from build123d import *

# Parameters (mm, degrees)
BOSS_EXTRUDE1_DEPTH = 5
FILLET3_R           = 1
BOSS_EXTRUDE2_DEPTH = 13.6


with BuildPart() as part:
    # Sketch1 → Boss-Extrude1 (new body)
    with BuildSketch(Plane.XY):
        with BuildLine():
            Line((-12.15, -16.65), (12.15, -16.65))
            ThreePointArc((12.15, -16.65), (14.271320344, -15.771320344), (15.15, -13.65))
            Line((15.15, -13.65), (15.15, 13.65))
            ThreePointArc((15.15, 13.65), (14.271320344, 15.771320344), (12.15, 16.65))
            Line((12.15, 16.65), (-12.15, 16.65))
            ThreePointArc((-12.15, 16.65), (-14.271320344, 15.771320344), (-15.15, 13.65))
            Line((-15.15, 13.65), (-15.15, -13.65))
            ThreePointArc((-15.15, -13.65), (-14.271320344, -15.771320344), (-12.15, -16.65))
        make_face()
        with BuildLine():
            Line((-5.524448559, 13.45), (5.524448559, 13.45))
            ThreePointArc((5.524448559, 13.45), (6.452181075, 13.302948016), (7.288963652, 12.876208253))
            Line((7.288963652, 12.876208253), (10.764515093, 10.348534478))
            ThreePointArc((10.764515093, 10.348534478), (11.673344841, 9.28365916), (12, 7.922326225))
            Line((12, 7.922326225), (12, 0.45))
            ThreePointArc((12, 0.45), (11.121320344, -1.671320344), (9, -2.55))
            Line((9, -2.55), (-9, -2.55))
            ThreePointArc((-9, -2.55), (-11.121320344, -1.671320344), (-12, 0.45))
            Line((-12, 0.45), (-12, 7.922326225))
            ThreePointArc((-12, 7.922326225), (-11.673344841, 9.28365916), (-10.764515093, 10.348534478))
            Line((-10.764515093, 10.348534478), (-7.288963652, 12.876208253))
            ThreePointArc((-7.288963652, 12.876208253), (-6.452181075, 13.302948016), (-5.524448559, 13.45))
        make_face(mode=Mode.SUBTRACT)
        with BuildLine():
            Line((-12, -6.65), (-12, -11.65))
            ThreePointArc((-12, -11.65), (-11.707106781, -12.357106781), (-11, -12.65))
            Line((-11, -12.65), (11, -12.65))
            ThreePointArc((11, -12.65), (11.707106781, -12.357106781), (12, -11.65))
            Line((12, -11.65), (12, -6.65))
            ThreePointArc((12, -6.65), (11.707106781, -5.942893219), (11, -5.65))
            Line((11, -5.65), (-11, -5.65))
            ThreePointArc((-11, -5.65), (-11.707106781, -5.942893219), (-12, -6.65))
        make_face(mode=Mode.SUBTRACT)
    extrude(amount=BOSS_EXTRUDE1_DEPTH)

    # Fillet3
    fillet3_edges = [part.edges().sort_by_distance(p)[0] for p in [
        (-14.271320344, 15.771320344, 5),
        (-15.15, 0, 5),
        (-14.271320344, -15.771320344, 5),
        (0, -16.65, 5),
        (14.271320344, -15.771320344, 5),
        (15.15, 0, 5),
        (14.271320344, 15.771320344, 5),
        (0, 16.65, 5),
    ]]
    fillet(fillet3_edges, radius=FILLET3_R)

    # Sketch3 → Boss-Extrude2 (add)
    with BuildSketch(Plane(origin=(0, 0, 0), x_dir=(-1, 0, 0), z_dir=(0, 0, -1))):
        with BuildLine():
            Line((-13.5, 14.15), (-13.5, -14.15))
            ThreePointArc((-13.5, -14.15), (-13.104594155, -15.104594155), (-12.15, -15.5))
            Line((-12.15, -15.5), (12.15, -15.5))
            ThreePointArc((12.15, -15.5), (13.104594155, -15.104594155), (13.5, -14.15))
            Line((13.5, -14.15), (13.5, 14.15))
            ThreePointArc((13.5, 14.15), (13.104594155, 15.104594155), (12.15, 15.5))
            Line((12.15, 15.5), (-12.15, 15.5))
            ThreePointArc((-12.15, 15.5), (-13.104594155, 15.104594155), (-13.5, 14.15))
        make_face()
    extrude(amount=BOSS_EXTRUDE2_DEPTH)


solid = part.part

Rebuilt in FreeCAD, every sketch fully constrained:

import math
import FreeCAD as App
import Part
import Sketcher

V = App.Vector
Q = App.Units.Quantity


def edges_at(feature, points):
    """Names of the edges that pass closest to the given points."""
    edges = feature.Shape.Edges
    near = lambda p: min(range(len(edges)), key=lambda i: edges[i].distToShape(Part.Vertex(*p))[0])
    return sorted({f"Edge{near(p) + 1}" for p in points})

doc = App.newDocument("Part")
body = doc.addObject("PartDesign::Body", "Body")

sketch1 = body.newObject("Sketcher::SketchObject", "Sketch")
sketch1.AttachmentSupport = (doc.getObject("XY_Plane"), [""])
sketch1.MapMode = "FlatFace"
sketch1.addGeometry([
    Part.LineSegment(V(-12.15, -16.65, 0), V(12.15, -16.65, 0)),
    Part.ArcOfCircle(Part.Circle(V(12.15, -13.65, 0), V(0, 0, 1), 3), math.radians(-90), math.radians(0)),
    Part.LineSegment(V(15.15, -13.65, 0), V(15.15, 13.65, 0)),
    Part.ArcOfCircle(Part.Circle(V(12.15, 13.65, 0), V(0, 0, 1), 3), math.radians(0), math.radians(90)),
    Part.LineSegment(V(12.15, 16.65, 0), V(-12.15, 16.65, 0)),
    Part.ArcOfCircle(Part.Circle(V(-12.15, 13.65, 0), V(0, 0, 1), 3), math.radians(90), math.radians(180)),
    Part.LineSegment(V(-15.15, 13.65, 0), V(-15.15, -13.65, 0)),
    Part.ArcOfCircle(Part.Circle(V(-12.15, -13.65, 0), V(0, 0, 1), 3), math.radians(180), math.radians(270)),
    Part.LineSegment(V(-12, -11.65, 0), V(-12, -6.65, 0)),
    Part.ArcOfCircle(Part.Circle(V(-11, -6.65, 0), V(0, 0, 1), 1), math.radians(90), math.radians(180)),
    Part.LineSegment(V(-11, -5.65, 0), V(11, -5.65, 0)),
    Part.ArcOfCircle(Part.Circle(V(11, -6.65, 0), V(0, 0, 1), 1), math.radians(0), math.radians(90)),
    Part.LineSegment(V(12, -6.65, 0), V(12, -11.65, 0)),
    Part.ArcOfCircle(Part.Circle(V(11, -11.65, 0), V(0, 0, 1), 1), math.radians(-90), math.radians(0)),
    Part.LineSegment(V(11, -12.65, 0), V(-11, -12.65, 0)),
    Part.ArcOfCircle(Part.Circle(V(-11, -11.65, 0), V(0, 0, 1), 1), math.radians(-180), math.radians(-90)),
    Part.ArcOfCircle(Part.Circle(V(-5.524449, 10.45, 0), V(0, 0, 1), 3), math.radians(90), math.radians(126.027373)),
    Part.LineSegment(V(-5.524449, 13.45, 0), V(5.524449, 13.45, 0)),
    Part.ArcOfCircle(Part.Circle(V(5.524449, 10.45, 0), V(0, 0, 1), 3), math.radians(53.972627), math.radians(90)),
    Part.LineSegment(V(7.288964, 12.876208, 0), V(10.764515, 10.348534, 0)),
    Part.ArcOfCircle(Part.Circle(V(9, 7.922326, 0), V(0, 0, 1), 3), math.radians(0), math.radians(53.972627)),
    Part.LineSegment(V(12, 7.922326, 0), V(12, 0.45, 0)),
    Part.ArcOfCircle(Part.Circle(V(9, 0.45, 0), V(0, 0, 1), 3), math.radians(-90), math.radians(0)),
    Part.LineSegment(V(9, -2.55, 0), V(-9, -2.55, 0)),
    Part.ArcOfCircle(Part.Circle(V(-9, 0.45, 0), V(0, 0, 1), 3), math.radians(180), math.radians(270)),
    Part.LineSegment(V(-12, 0.45, 0), V(-12, 7.922326, 0)),
    Part.ArcOfCircle(Part.Circle(V(-9, 7.922326, 0), V(0, 0, 1), 3), math.radians(126.027373), math.radians(180)),
    Part.LineSegment(V(-10.764515, 10.348534, 0), V(-7.288964, 12.876208, 0)),
], False)
sketch1.addConstraint([
    Sketcher.Constraint("Tangent", 0, 2, 1, 1),
    Sketcher.Constraint("Tangent", 1, 2, 2, 1),
    Sketcher.Constraint("Tangent", 2, 2, 3, 1),
    Sketcher.Constraint("Tangent", 3, 2, 4, 1),
    Sketcher.Constraint("Tangent", 4, 2, 5, 1),
    Sketcher.Constraint("Tangent", 5, 2, 6, 1),
    Sketcher.Constraint("Tangent", 6, 2, 7, 1),
    Sketcher.Constraint("Tangent", 7, 2, 0, 1),
    Sketcher.Constraint("Tangent", 8, 2, 9, 2),
    Sketcher.Constraint("Tangent", 9, 1, 10, 1),
    Sketcher.Constraint("Tangent", 10, 2, 11, 2),
    Sketcher.Constraint("Tangent", 11, 1, 12, 1),
    Sketcher.Constraint("Tangent", 12, 2, 13, 2),
    Sketcher.Constraint("Tangent", 13, 1, 14, 1),
    Sketcher.Constraint("Tangent", 14, 2, 15, 2),
    Sketcher.Constraint("Tangent", 15, 1, 8, 1),
    Sketcher.Constraint("Tangent", 16, 1, 17, 1),
    Sketcher.Constraint("Tangent", 17, 2, 18, 2),
    Sketcher.Constraint("Tangent", 18, 1, 19, 1),
    Sketcher.Constraint("Tangent", 19, 2, 20, 2),
    Sketcher.Constraint("Tangent", 20, 1, 21, 1),
    Sketcher.Constraint("Tangent", 21, 2, 22, 2),
    Sketcher.Constraint("Tangent", 22, 1, 23, 1),
    Sketcher.Constraint("Tangent", 23, 2, 24, 2),
    Sketcher.Constraint("Tangent", 24, 1, 25, 1),
    Sketcher.Constraint("Tangent", 25, 2, 26, 2),
    Sketcher.Constraint("Tangent", 26, 1, 27, 1),
    Sketcher.Constraint("Tangent", 27, 2, 16, 2),
    Sketcher.Constraint("Horizontal", 0),
    Sketcher.Constraint("Vertical", 2),
    Sketcher.Constraint("Horizontal", 4),
    Sketcher.Constraint("Vertical", 6),
    Sketcher.Constraint("Vertical", 8),
    Sketcher.Constraint("Horizontal", 10),
    Sketcher.Constraint("Vertical", 12),
    Sketcher.Constraint("Horizontal", 14),
    Sketcher.Constraint("Horizontal", 17),
    Sketcher.Constraint("Vertical", 21),
    Sketcher.Constraint("Horizontal", 23),
    Sketcher.Constraint("Vertical", 25),
    Sketcher.Constraint("Equal", 1, 3),
    Sketcher.Constraint("Equal", 3, 5),
    Sketcher.Constraint("Equal", 5, 7),
    Sketcher.Constraint("Equal", 9, 11),
    Sketcher.Constraint("Equal", 11, 13),
    Sketcher.Constraint("Equal", 13, 15),
    Sketcher.Constraint("Equal", 7, 16),
    Sketcher.Constraint("Equal", 16, 18),
    Sketcher.Constraint("Equal", 18, 20),
    Sketcher.Constraint("Equal", 20, 22),
    Sketcher.Constraint("Equal", 22, 24),
    Sketcher.Constraint("Equal", 24, 26),
    Sketcher.Constraint("Symmetric", 1, 3, 5, 3, -1, 1),
    Sketcher.Constraint("Symmetric", 20, 3, 26, 3, -2),
    Sketcher.Constraint("Horizontal", 19, 2, 26, 1),
    Sketcher.Constraint("Vertical", 12, 2, 20, 1),
    Sketcher.Constraint("Vertical", 15, 1, 24, 1),
    Sketcher.Constraint("Radius", 1, Q("3 mm")),
    Sketcher.Constraint("Radius", 9, Q("1 mm")),
    Sketcher.Constraint("DistanceX", 10, 1, 10, 2, Q("22 mm")),
    Sketcher.Constraint("DistanceY", 8, 1, 8, 2, Q("5 mm")),
    Sketcher.Constraint("DistanceX", 0, 1, 0, 2, Q("24.3 mm")),
    Sketcher.Constraint("DistanceY", 2, 1, 2, 2, Q("27.3 mm")),
    Sketcher.Constraint("DistanceY", 7, 3, 9, 3, Q("7 mm")),
    Sketcher.Constraint("DistanceY", 22, 3, 18, 3, Q("10 mm")),
    Sketcher.Constraint("DistanceY", 16, 3, 5, 3, Q("3.2 mm")),
    Sketcher.Constraint("Distance", 19, Q("4.29751 mm")),
    Sketcher.Constraint("DistanceX", 17, 1, 17, 2, Q("11.048897 mm")),
])
pad1 = body.newObject("PartDesign::Pad", "Pad")
pad1.Profile = sketch1
pad1.Length = 5
doc.recompute()

fillet = body.newObject("PartDesign::Fillet", "Fillet")
fillet.Base = (pad1, edges_at(pad1, [
    (-14.271, 15.771, 5),
    (-15.15, 0, 5),
    (-14.271, -15.771, 5),
    (0, -16.65, 5),
    (14.271, -15.771, 5),
    (15.15, 0, 5),
    (14.271, 15.771, 5),
    (0, 16.65, 5),
]))
fillet.Radius = 1

sketch2 = body.newObject("Sketcher::SketchObject", "Sketch001")
sketch2.AttachmentSupport = (doc.getObject("XY_Plane"), [""])
sketch2.MapMode = "FlatFace"
sketch2.addGeometry([
    Part.LineSegment(V(13.5, 14.15, 0), V(13.5, -14.15, 0)),
    Part.ArcOfCircle(Part.Circle(V(12.15, -14.15, 0), V(0, 0, 1), 1.35), math.radians(-90), math.radians(0)),
    Part.LineSegment(V(12.15, -15.5, 0), V(-12.15, -15.5, 0)),
    Part.ArcOfCircle(Part.Circle(V(-12.15, -14.15, 0), V(0, 0, 1), 1.35), math.radians(180), math.radians(270)),
    Part.LineSegment(V(-13.5, -14.15, 0), V(-13.5, 14.15, 0)),
    Part.ArcOfCircle(Part.Circle(V(-12.15, 14.15, 0), V(0, 0, 1), 1.35), math.radians(90), math.radians(180)),
    Part.LineSegment(V(-12.15, 15.5, 0), V(12.15, 15.5, 0)),
    Part.ArcOfCircle(Part.Circle(V(12.15, 14.15, 0), V(0, 0, 1), 1.35), math.radians(0), math.radians(90)),
], False)
sketch2.addConstraint([
    Sketcher.Constraint("Tangent", 0, 2, 1, 2),
    Sketcher.Constraint("Tangent", 1, 1, 2, 1),
    Sketcher.Constraint("Tangent", 2, 2, 3, 2),
    Sketcher.Constraint("Tangent", 3, 1, 4, 1),
    Sketcher.Constraint("Tangent", 4, 2, 5, 2),
    Sketcher.Constraint("Tangent", 5, 1, 6, 1),
    Sketcher.Constraint("Tangent", 6, 2, 7, 2),
    Sketcher.Constraint("Tangent", 7, 1, 0, 1),
    Sketcher.Constraint("Vertical", 0),
    Sketcher.Constraint("Horizontal", 2),
    Sketcher.Constraint("Vertical", 4),
    Sketcher.Constraint("Horizontal", 6),
    Sketcher.Constraint("Equal", 1, 3),
    Sketcher.Constraint("Equal", 3, 5),
    Sketcher.Constraint("Equal", 5, 7),
    Sketcher.Constraint("Symmetric", 1, 3, 5, 3, -1, 1),
    Sketcher.Constraint("Radius", 1, Q("1.35 mm")),
    Sketcher.Constraint("DistanceX", 2, 2, 2, 1, Q("24.3 mm")),
    Sketcher.Constraint("DistanceY", 0, 2, 0, 1, Q("28.3 mm")),
])
pad2 = body.newObject("PartDesign::Pad", "Pad001")
pad2.Profile = sketch2
pad2.Length = 13.6
pad2.Reversed = True

doc.recompute()
